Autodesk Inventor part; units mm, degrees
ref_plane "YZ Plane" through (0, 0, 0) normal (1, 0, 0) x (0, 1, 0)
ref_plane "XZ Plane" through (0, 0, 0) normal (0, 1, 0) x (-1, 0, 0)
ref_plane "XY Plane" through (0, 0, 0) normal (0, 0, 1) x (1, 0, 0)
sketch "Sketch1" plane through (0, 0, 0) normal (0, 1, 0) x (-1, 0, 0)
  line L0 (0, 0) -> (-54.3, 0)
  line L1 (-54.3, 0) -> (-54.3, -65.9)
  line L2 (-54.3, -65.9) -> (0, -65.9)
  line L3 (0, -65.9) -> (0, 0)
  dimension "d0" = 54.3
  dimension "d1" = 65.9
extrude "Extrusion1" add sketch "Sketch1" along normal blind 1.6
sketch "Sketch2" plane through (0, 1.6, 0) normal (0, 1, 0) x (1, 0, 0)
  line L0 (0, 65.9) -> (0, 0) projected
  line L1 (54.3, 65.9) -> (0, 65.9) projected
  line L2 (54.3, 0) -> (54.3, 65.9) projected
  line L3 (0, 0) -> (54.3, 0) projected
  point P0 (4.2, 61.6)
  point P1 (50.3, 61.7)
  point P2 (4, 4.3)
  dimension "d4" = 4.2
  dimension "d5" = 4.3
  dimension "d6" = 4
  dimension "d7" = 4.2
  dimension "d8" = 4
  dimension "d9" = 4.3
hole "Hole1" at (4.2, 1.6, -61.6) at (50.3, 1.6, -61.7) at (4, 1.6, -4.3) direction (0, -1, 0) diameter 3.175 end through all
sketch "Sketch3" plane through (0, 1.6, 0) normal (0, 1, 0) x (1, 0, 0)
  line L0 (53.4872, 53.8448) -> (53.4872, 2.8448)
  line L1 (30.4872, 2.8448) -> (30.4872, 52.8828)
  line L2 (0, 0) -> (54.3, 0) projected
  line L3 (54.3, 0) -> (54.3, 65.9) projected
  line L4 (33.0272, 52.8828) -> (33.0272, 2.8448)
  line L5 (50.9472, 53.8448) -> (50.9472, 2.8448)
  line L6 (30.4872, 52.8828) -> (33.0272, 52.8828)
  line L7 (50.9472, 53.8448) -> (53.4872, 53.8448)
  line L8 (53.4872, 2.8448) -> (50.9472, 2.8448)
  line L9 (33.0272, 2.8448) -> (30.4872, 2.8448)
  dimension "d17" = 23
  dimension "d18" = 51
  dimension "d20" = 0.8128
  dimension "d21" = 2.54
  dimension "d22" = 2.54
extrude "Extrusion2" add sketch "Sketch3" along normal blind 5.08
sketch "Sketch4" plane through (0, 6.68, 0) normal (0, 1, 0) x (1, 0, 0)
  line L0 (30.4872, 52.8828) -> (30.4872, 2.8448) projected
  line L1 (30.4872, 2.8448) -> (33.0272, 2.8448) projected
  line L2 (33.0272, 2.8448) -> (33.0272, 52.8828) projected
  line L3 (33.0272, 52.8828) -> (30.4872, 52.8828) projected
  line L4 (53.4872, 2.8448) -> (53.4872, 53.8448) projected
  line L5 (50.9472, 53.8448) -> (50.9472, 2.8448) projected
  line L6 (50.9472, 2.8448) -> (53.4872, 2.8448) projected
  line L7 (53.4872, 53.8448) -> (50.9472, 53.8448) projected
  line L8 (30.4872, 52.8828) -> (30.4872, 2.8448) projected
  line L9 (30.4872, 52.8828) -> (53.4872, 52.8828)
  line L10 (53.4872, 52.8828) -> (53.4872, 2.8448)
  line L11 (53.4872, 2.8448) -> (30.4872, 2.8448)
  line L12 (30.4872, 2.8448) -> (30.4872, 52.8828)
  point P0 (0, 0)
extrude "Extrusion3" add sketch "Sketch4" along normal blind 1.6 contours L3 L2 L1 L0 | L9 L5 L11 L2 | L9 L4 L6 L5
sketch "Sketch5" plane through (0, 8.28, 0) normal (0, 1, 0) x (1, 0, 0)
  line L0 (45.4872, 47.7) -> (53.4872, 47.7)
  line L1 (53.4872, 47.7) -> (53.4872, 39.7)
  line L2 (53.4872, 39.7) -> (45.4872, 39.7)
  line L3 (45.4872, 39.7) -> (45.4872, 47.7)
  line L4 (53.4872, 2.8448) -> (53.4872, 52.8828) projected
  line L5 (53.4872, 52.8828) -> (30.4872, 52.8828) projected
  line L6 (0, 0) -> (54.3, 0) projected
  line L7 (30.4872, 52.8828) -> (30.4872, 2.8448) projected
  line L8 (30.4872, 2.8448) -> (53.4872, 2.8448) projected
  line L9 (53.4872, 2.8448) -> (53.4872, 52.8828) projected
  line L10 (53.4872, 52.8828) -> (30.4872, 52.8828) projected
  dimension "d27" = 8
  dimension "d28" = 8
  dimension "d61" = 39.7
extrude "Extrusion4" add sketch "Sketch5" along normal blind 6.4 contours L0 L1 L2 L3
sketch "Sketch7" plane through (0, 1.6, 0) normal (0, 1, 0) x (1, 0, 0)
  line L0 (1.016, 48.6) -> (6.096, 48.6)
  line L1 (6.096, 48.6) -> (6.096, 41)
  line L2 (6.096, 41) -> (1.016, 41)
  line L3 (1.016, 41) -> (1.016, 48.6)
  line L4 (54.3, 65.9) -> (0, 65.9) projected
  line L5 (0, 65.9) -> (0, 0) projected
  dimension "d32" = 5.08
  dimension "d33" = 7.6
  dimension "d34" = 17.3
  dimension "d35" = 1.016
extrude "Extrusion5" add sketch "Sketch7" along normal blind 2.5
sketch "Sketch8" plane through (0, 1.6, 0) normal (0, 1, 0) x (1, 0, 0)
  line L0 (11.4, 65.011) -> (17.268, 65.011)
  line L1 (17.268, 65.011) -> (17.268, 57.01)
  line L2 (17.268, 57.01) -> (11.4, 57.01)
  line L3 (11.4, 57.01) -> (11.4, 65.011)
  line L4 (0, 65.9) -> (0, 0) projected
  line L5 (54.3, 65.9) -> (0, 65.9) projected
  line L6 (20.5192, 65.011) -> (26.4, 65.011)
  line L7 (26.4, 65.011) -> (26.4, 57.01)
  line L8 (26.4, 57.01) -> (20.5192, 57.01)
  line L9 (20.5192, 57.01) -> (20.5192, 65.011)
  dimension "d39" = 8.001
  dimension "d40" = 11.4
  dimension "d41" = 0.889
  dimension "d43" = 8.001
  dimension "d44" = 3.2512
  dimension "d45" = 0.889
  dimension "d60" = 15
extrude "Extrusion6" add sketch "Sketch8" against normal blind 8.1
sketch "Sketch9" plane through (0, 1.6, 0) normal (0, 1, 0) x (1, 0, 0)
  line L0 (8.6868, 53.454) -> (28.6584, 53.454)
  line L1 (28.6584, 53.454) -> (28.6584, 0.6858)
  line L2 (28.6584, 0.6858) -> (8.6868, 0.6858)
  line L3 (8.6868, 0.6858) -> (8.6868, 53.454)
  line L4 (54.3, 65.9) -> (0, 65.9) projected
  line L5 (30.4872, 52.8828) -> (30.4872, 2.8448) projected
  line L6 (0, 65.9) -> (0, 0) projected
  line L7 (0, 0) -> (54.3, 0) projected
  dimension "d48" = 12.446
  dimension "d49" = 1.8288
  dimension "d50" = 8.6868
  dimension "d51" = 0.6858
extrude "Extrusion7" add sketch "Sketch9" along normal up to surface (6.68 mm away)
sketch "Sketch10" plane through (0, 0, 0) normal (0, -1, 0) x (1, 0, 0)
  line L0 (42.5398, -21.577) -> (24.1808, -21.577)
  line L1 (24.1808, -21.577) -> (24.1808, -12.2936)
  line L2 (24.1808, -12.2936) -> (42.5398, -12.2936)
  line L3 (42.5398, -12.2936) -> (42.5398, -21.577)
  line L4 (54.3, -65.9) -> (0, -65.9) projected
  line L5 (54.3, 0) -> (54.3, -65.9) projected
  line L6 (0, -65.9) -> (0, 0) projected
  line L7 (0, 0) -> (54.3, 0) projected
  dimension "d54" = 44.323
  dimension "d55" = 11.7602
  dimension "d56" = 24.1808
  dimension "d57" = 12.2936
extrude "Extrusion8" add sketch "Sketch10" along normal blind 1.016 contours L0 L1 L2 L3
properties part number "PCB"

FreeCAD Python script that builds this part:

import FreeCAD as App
import Part
import Sketcher

V = App.Vector
Q = App.Units.Quantity

doc = App.newDocument("Part")
params = doc.addObject("Spreadsheet::Sheet", "Params")
for row, (alias, value) in enumerate([
    ("pad1_length", "0.0629921 in"),
    ("sketch2_diameter", "0.125 in"),
    ("hole_diameter", "0.125 in"),
    ("sketch3_width", "0.1 in"),
    ("sketch3_height", "1.97 in"),
    ("pad2_length", "0.2 in"),
    ("sketch4_height", "1.97 in"),
    ("pad3_length", "0.0629921 in"),
    ("pad4_length", "6.4 mm"),
    ("sketch6_width", "0.2 in"),
    ("pad5_length", "2.5 mm"),
    ("sketch7_height", "0.315 in"),
    ("pad6_length", "0.3188976 in"),
    ("pad7_length", "0.2629921 in"),
    ("pad8_length", "0.04 in"),
], start=1):
    params.set(f"A{row}", alias)
    params.set(f"B{row}", "=" + value)
    params.setAlias(f"B{row}", alias)

body = doc.addObject("PartDesign::Body", "Body")

# Sketch on XZ plane
sketch1 = body.newObject("Sketcher::SketchObject", "Sketch")
sketch1.AttachmentSupport = (doc.getObject("XZ_Plane"), [""])
sketch1.MapMode = "FlatFace"
sketch1.addGeometry([
    Part.LineSegment(V(0, -65.9, 0), V(0, 0, 0)),
    Part.LineSegment(V(0, 0, 0), V(54.3, 0, 0)),
    Part.LineSegment(V(54.3, 0, 0), V(54.3, -65.9, 0)),
    Part.LineSegment(V(54.3, -65.9, 0), V(0, -65.9, 0)),
], False)
sketch1.addConstraint([
    Sketcher.Constraint("Coincident", 0, 2, 1, 1),
    Sketcher.Constraint("Coincident", 1, 2, 2, 1),
    Sketcher.Constraint("Coincident", 2, 2, 3, 1),
    Sketcher.Constraint("Coincident", 3, 2, 0, 1),
    Sketcher.Constraint("Vertical", 0),
    Sketcher.Constraint("Horizontal", 1),
    Sketcher.Constraint("Vertical", 2),
    Sketcher.Constraint("Horizontal", 3),
    Sketcher.Constraint("Coincident", 0, 2, -1, 1),
    Sketcher.Constraint("DistanceX", 1, 1, 1, 2, Q("2.1378 in")),
    Sketcher.Constraint("DistanceY", 0, 1, 0, 2, Q("2.5945 in")),
])
pad1 = body.newObject("PartDesign::Pad", "Pad")
pad1.Profile = sketch1
pad1.setExpression("Length", "Params.pad1_length")
pad1.Reversed = True

# Sketch on XZ plane
sketch2 = body.newObject("Sketcher::SketchObject", "Sketch001")
sketch2.AttachmentSupport = (doc.getObject("XZ_Plane"), [""])
sketch2.MapMode = "FlatFace"
sketch2.AttachmentOffset = App.Placement(V(0, 0, -0.0629921 * 25.4), App.Rotation())
sketch2.addGeometry([
    Part.Circle(V(4.2, -61.6, 0), V(0, 0, 1), 1.5875),
    Part.Circle(V(50.3, -61.7, 0), V(0, 0, 1), 1.5875),
    Part.Circle(V(4, -4.3, 0), V(0, 0, 1), 1.5875),
], False)
sketch2.addConstraint([
    Sketcher.Constraint("Equal", 0, 1),
    Sketcher.Constraint("Equal", 1, 2),
    Sketcher.Constraint("Diameter", 0, Q("0.125 in")),
    Sketcher.Constraint("DistanceY", 0, 3, -1, 1, Q("2.4252 in")),
    Sketcher.Constraint("DistanceY", 2, 3, -1, 1, Q("0.1693 in")),
    Sketcher.Constraint("DistanceX", -1, 1, 0, 3, Q("4.2 mm")),
    Sketcher.Constraint("DistanceX", -1, 1, 1, 3, Q("50.3 mm")),
    Sketcher.Constraint("DistanceY", 1, 3, -1, 1, Q("61.7 mm")),
    Sketcher.Constraint("DistanceX", -1, 1, 2, 3, Q("4 mm")),
])
sketch2.setExpression("Constraints[2]", "Params.sketch2_diameter")
doc.recompute()
hole = body.newObject("PartDesign::Hole", "Hole")
hole.Profile = sketch2
hole.ThreadType = "None"
hole.setExpression("Diameter", "Params.hole_diameter")
hole.DepthType = "ThroughAll"
hole.Reversed = True

# Sketch on XZ plane
sketch3 = body.newObject("Sketcher::SketchObject", "Sketch002")
sketch3.AttachmentSupport = (doc.getObject("XZ_Plane"), [""])
sketch3.MapMode = "FlatFace"
sketch3.AttachmentOffset = App.Placement(V(0, 0, -0.0629921 * 25.4), App.Rotation())
sketch3.addGeometry([
    Part.LineSegment(V(53.4872, -2.8448, 0), V(53.4872, -53.8448, 0)),  # 0
    Part.LineSegment(V(53.4872, -53.8448, 0), V(50.9472, -53.8448, 0)),  # 1
    Part.LineSegment(V(50.9472, -53.8448, 0), V(50.9472, -2.8448, 0)),  # 2
    Part.LineSegment(V(50.9472, -2.8448, 0), V(53.4872, -2.8448, 0)),  # 3
    Part.LineSegment(V(30.4872, -52.8828, 0), V(30.4872, -2.8448, 0)),  # 4
    Part.LineSegment(V(30.4872, -2.8448, 0), V(33.0272, -2.8448, 0)),  # 5
    Part.LineSegment(V(33.0272, -2.8448, 0), V(33.0272, -52.8828, 0)),  # 6
    Part.LineSegment(V(33.0272, -52.8828, 0), V(30.4872, -52.8828, 0)),  # 7
], False)
sketch3.addConstraint([
    Sketcher.Constraint("Coincident", 0, 2, 1, 1),
    Sketcher.Constraint("Coincident", 1, 2, 2, 1),
    Sketcher.Constraint("Coincident", 2, 2, 3, 1),
    Sketcher.Constraint("Coincident", 3, 2, 0, 1),
    Sketcher.Constraint("Coincident", 4, 2, 5, 1),
    Sketcher.Constraint("Coincident", 5, 2, 6, 1),
    Sketcher.Constraint("Coincident", 6, 2, 7, 1),
    Sketcher.Constraint("Coincident", 7, 2, 4, 1),
    Sketcher.Constraint("Vertical", 0),
    Sketcher.Constraint("Horizontal", 1),
    Sketcher.Constraint("Vertical", 2),
    Sketcher.Constraint("Horizontal", 3),
    Sketcher.Constraint("Vertical", 4),
    Sketcher.Constraint("Horizontal", 5),
    Sketcher.Constraint("Vertical", 6),
    Sketcher.Constraint("Horizontal", 7),
    Sketcher.Constraint("Horizontal", 3, 2, 4, 2),
    Sketcher.Constraint("Equal", 3, 5),
    Sketcher.Constraint("DistanceX", 1, 2, 1, 1, Q("0.1 in")),
    Sketcher.Constraint("DistanceY", 0, 2, 0, 1, Q("51 mm")),
    Sketcher.Constraint("DistanceY", 4, 1, 4, 2, Q("1.97 in")),
    Sketcher.Constraint("DistanceX", 4, 2, 3, 2, Q("0.9055 in")),
    Sketcher.Constraint("DistanceY", 2, 2, -1, 1, Q("0.112 in")),
    Sketcher.Constraint("DistanceX", -1, 1, 0, 2, Q("2.1058 in")),
])
sketch3.setExpression("Constraints[18]", "Params.sketch3_width")
sketch3.setExpression("Constraints[20]", "Params.sketch3_height")
pad2 = body.newObject("PartDesign::Pad", "Pad001")
pad2.Profile = sketch3
pad2.setExpression("Length", "Params.pad2_length")
pad2.Reversed = True

# Sketch on XZ plane
sketch4 = body.newObject("Sketcher::SketchObject", "Sketch003")
sketch4.AttachmentSupport = (doc.getObject("XZ_Plane"), [""])
sketch4.MapMode = "FlatFace"
sketch4.AttachmentOffset = App.Placement(V(0, 0, -0.2629921 * 25.4), App.Rotation())
sketch4.addGeometry([
    Part.LineSegment(V(30.4872, -52.8828, 0), V(30.4872, -2.8448, 0)),
    Part.LineSegment(V(30.4872, -2.8448, 0), V(53.4872, -2.8448, 0)),
    Part.LineSegment(V(53.4872, -2.8448, 0), V(53.4872, -52.8828, 0)),
    Part.LineSegment(V(53.4872, -52.8828, 0), V(30.4872, -52.8828, 0)),
], False)
sketch4.addConstraint([
    Sketcher.Constraint("Coincident", 0, 2, 1, 1),
    Sketcher.Constraint("Coincident", 1, 2, 2, 1),
    Sketcher.Constraint("Coincident", 2, 2, 3, 1),
    Sketcher.Constraint("Coincident", 3, 2, 0, 1),
    Sketcher.Constraint("Vertical", 0),
    Sketcher.Constraint("Horizontal", 1),
    Sketcher.Constraint("Vertical", 2),
    Sketcher.Constraint("Horizontal", 3),
    Sketcher.Constraint("DistanceY", 0, 1, 0, 2, Q("1.97 in")),
    Sketcher.Constraint("DistanceX", 1, 1, 1, 2, Q("0.9055 in")),
    Sketcher.Constraint("DistanceY", 0, 2, -1, 1, Q("0.112 in")),
    Sketcher.Constraint("DistanceX", -1, 1, 1, 2, Q("2.1058 in")),
])
sketch4.setExpression("Constraints[8]", "Params.sketch4_height")
pad3 = body.newObject("PartDesign::Pad", "Pad002")
pad3.Profile = sketch4
pad3.setExpression("Length", "Params.pad3_length")
pad3.Reversed = True

# Sketch on XZ plane
sketch5 = body.newObject("Sketcher::SketchObject", "Sketch004")
sketch5.AttachmentSupport = (doc.getObject("XZ_Plane"), [""])
sketch5.MapMode = "FlatFace"
sketch5.AttachmentOffset = App.Placement(V(0, 0, -8.28), App.Rotation())
sketch5.addGeometry([
    Part.LineSegment(V(53.4872, -47.7, 0), V(45.4872, -47.7, 0)),
    Part.LineSegment(V(45.4872, -47.7, 0), V(45.4872, -39.7, 0)),
    Part.LineSegment(V(45.4872, -39.7, 0), V(53.4872, -39.7, 0)),
    Part.LineSegment(V(53.4872, -39.7, 0), V(53.4872, -47.7, 0)),
], False)
sketch5.addConstraint([
    Sketcher.Constraint("Coincident", 0, 2, 1, 1),
    Sketcher.Constraint("Coincident", 1, 2, 2, 1),
    Sketcher.Constraint("Coincident", 2, 2, 3, 1),
    Sketcher.Constraint("Coincident", 3, 2, 0, 1),
    Sketcher.Constraint("Horizontal", 0),
    Sketcher.Constraint("Vertical", 1),
    Sketcher.Constraint("Horizontal", 2),
    Sketcher.Constraint("Vertical", 3),
    Sketcher.Constraint("Equal", 2, 1),
    Sketcher.Constraint("DistanceY", 1, 2, -1, 1, Q("1.563 in")),
    Sketcher.Constraint("DistanceX", 0, 2, 0, 1, Q("8 mm")),
    Sketcher.Constraint("DistanceX", -1, 1, 2, 2, Q("2.1058 in")),
])
pad4 = body.newObject("PartDesign::Pad", "Pad003")
pad4.Profile = sketch5
pad4.setExpression("Length", "Params.pad4_length")
pad4.Reversed = True

# Sketch on XZ plane
sketch6 = body.newObject("Sketcher::SketchObject", "Sketch005")
sketch6.AttachmentSupport = (doc.getObject("XZ_Plane"), [""])
sketch6.MapMode = "FlatFace"
sketch6.AttachmentOffset = App.Placement(V(0, 0, -0.0629921 * 25.4), App.Rotation())
sketch6.addGeometry([
    Part.LineSegment(V(6.096, -48.6, 0), V(1.016, -48.6, 0)),
    Part.LineSegment(V(1.016, -48.6, 0), V(1.016, -41, 0)),
    Part.LineSegment(V(1.016, -41, 0), V(6.096, -41, 0)),
    Part.LineSegment(V(6.096, -41, 0), V(6.096, -48.6, 0)),
], False)
sketch6.addConstraint([
    Sketcher.Constraint("Coincident", 0, 2, 1, 1),
    Sketcher.Constraint("Coincident", 1, 2, 2, 1),
    Sketcher.Constraint("Coincident", 2, 2, 3, 1),
    Sketcher.Constraint("Coincident", 3, 2, 0, 1),
    Sketcher.Constraint("Horizontal", 0),
    Sketcher.Constraint("Vertical", 1),
    Sketcher.Constraint("Horizontal", 2),
    Sketcher.Constraint("Vertical", 3),
    Sketcher.Constraint("DistanceX", 0, 2, 0, 1, Q("0.2 in")),
    Sketcher.Constraint("DistanceX", -1, 1, 0, 2, Q("0.04 in")),
    Sketcher.Constraint("DistanceY", 1, 1, 1, 2, Q("7.6 mm")),
    Sketcher.Constraint("DistanceY", 0, 2, -1, 1, Q("48.6 mm")),
])
sketch6.setExpression("Constraints[8]", "Params.sketch6_width")
pad5 = body.newObject("PartDesign::Pad", "Pad004")
pad5.Profile = sketch6
pad5.setExpression("Length", "Params.pad5_length")
pad5.Reversed = True

# Sketch on XZ plane
sketch7 = body.newObject("Sketcher::SketchObject", "Sketch006")
sketch7.AttachmentSupport = (doc.getObject("XZ_Plane"), [""])
sketch7.MapMode = "FlatFace"
sketch7.AttachmentOffset = App.Placement(V(0, 0, -0.0629921 * 25.4), App.Rotation())
sketch7.addGeometry([
    Part.LineSegment(V(17.268, -65.011, 0), V(11.4, -65.011, 0)),  # 0
    Part.LineSegment(V(11.4, -65.011, 0), V(11.4, -57.01, 0)),  # 1
    Part.LineSegment(V(11.4, -57.01, 0), V(17.268, -57.01, 0)),  # 2
    Part.LineSegment(V(17.268, -57.01, 0), V(17.268, -65.011, 0)),  # 3
    Part.LineSegment(V(26.4, -65.011, 0), V(20.5192, -65.011, 0)),  # 4
    Part.LineSegment(V(20.5192, -65.011, 0), V(20.5192, -57.01, 0)),  # 5
    Part.LineSegment(V(20.5192, -57.01, 0), V(26.4, -57.01, 0)),  # 6
    Part.LineSegment(V(26.4, -57.01, 0), V(26.4, -65.011, 0)),  # 7
], False)
sketch7.addConstraint([
    Sketcher.Constraint("Coincident", 0, 2, 1, 1),
    Sketcher.Constraint("Coincident", 1, 2, 2, 1),
    Sketcher.Constraint("Coincident", 2, 2, 3, 1),
    Sketcher.Constraint("Coincident", 3, 2, 0, 1),
    Sketcher.Constraint("Coincident", 4, 2, 5, 1),
    Sketcher.Constraint("Coincident", 5, 2, 6, 1),
    Sketcher.Constraint("Coincident", 6, 2, 7, 1),
    Sketcher.Constraint("Coincident", 7, 2, 4, 1),
    Sketcher.Constraint("Horizontal", 0),
    Sketcher.Constraint("Vertical", 1),
    Sketcher.Constraint("Horizontal", 2),
    Sketcher.Constraint("Vertical", 3),
    Sketcher.Constraint("Horizontal", 4),
    Sketcher.Constraint("Vertical", 5),
    Sketcher.Constraint("Horizontal", 6),
    Sketcher.Constraint("Vertical", 7),
    Sketcher.Constraint("Horizontal", 3, 2, 4, 2),
    Sketcher.Constraint("Horizontal", 2, 2, 5, 2),
    Sketcher.Constraint("DistanceY", 1, 1, 1, 2, Q("0.315 in")),
    Sketcher.Constraint("DistanceX", 3, 2, 4, 2, Q("0.128 in")),
    Sketcher.Constraint("DistanceX", -1, 1, 0, 2, Q("11.4 mm")),
    Sketcher.Constraint("DistanceX", 1, 2, 6, 2, Q("15 mm")),
    Sketcher.Constraint("DistanceX", 0, 2, 0, 1, Q("5.868 mm")),
    Sketcher.Constraint("DistanceY", 0, 2, -1, 1, Q("2.5595 in")),
])
sketch7.setExpression("Constraints[18]", "Params.sketch7_height")
pad6 = body.newObject("PartDesign::Pad", "Pad005")
pad6.Profile = sketch7
pad6.setExpression("Length", "Params.pad6_length")

# Sketch on XZ plane
sketch8 = body.newObject("Sketcher::SketchObject", "Sketch007")
sketch8.AttachmentSupport = (doc.getObject("XZ_Plane"), [""])
sketch8.MapMode = "FlatFace"
sketch8.AttachmentOffset = App.Placement(V(0, 0, -0.0629921 * 25.4), App.Rotation())
sketch8.addGeometry([
    Part.LineSegment(V(28.6584, -53.454, 0), V(8.6868, -53.454, 0)),
    Part.LineSegment(V(8.6868, -53.454, 0), V(8.6868, -0.6858, 0)),
    Part.LineSegment(V(8.6868, -0.6858, 0), V(28.6584, -0.6858, 0)),
    Part.LineSegment(V(28.6584, -0.6858, 0), V(28.6584, -53.454, 0)),
], False)
sketch8.addConstraint([
    Sketcher.Constraint("Coincident", 0, 2, 1, 1),
    Sketcher.Constraint("Coincident", 1, 2, 2, 1),
    Sketcher.Constraint("Coincident", 2, 2, 3, 1),
    Sketcher.Constraint("Coincident", 3, 2, 0, 1),
    Sketcher.Constraint("Horizontal", 0),
    Sketcher.Constraint("Vertical", 1),
    Sketcher.Constraint("Horizontal", 2),
    Sketcher.Constraint("Vertical", 3),
    Sketcher.Constraint("DistanceX", -1, 1, 0, 2, Q("0.342 in")),
    Sketcher.Constraint("DistanceY", 1, 2, -1, 1, Q("0.027 in")),
    Sketcher.Constraint("DistanceY", 1, 1, 1, 2, Q("2.0775 in")),
    Sketcher.Constraint("DistanceX", 0, 2, 0, 1, Q("19.9716 mm")),
])
pad7 = body.newObject("PartDesign::Pad", "Pad006")
pad7.Profile = sketch8
pad7.setExpression("Length", "Params.pad7_length")
pad7.Reversed = True

# Sketch on XZ plane
sketch9 = body.newObject("Sketcher::SketchObject", "Sketch008")
sketch9.AttachmentSupport = (doc.getObject("XZ_Plane"), [""])
sketch9.MapMode = "FlatFace"
sketch9.addGeometry([
    Part.LineSegment(V(24.1808, -21.577, 0), V(42.5398, -21.577, 0)),
    Part.LineSegment(V(42.5398, -21.577, 0), V(42.5398, -12.2936, 0)),
    Part.LineSegment(V(42.5398, -12.2936, 0), V(24.1808, -12.2936, 0)),
    Part.LineSegment(V(24.1808, -12.2936, 0), V(24.1808, -21.577, 0)),
], False)
sketch9.addConstraint([
    Sketcher.Constraint("Coincident", 0, 2, 1, 1),
    Sketcher.Constraint("Coincident", 1, 2, 2, 1),
    Sketcher.Constraint("Coincident", 2, 2, 3, 1),
    Sketcher.Constraint("Coincident", 3, 2, 0, 1),
    Sketcher.Constraint("Horizontal", 0),
    Sketcher.Constraint("Vertical", 1),
    Sketcher.Constraint("Horizontal", 2),
    Sketcher.Constraint("Vertical", 3),
    Sketcher.Constraint("DistanceY", 1, 2, -1, 1, Q("0.484 in")),
    Sketcher.Constraint("DistanceX", -1, 1, 2, 2, Q("0.952 in")),
    Sketcher.Constraint("DistanceX", 0, 1, 0, 2, Q("0.7228 in")),
    Sketcher.Constraint("DistanceY", 1, 1, 1, 2, Q("0.3655 in")),
])
pad8 = body.newObject("PartDesign::Pad", "Pad007")
pad8.Profile = sketch9
pad8.setExpression("Length", "Params.pad8_length")

doc.recompute()
